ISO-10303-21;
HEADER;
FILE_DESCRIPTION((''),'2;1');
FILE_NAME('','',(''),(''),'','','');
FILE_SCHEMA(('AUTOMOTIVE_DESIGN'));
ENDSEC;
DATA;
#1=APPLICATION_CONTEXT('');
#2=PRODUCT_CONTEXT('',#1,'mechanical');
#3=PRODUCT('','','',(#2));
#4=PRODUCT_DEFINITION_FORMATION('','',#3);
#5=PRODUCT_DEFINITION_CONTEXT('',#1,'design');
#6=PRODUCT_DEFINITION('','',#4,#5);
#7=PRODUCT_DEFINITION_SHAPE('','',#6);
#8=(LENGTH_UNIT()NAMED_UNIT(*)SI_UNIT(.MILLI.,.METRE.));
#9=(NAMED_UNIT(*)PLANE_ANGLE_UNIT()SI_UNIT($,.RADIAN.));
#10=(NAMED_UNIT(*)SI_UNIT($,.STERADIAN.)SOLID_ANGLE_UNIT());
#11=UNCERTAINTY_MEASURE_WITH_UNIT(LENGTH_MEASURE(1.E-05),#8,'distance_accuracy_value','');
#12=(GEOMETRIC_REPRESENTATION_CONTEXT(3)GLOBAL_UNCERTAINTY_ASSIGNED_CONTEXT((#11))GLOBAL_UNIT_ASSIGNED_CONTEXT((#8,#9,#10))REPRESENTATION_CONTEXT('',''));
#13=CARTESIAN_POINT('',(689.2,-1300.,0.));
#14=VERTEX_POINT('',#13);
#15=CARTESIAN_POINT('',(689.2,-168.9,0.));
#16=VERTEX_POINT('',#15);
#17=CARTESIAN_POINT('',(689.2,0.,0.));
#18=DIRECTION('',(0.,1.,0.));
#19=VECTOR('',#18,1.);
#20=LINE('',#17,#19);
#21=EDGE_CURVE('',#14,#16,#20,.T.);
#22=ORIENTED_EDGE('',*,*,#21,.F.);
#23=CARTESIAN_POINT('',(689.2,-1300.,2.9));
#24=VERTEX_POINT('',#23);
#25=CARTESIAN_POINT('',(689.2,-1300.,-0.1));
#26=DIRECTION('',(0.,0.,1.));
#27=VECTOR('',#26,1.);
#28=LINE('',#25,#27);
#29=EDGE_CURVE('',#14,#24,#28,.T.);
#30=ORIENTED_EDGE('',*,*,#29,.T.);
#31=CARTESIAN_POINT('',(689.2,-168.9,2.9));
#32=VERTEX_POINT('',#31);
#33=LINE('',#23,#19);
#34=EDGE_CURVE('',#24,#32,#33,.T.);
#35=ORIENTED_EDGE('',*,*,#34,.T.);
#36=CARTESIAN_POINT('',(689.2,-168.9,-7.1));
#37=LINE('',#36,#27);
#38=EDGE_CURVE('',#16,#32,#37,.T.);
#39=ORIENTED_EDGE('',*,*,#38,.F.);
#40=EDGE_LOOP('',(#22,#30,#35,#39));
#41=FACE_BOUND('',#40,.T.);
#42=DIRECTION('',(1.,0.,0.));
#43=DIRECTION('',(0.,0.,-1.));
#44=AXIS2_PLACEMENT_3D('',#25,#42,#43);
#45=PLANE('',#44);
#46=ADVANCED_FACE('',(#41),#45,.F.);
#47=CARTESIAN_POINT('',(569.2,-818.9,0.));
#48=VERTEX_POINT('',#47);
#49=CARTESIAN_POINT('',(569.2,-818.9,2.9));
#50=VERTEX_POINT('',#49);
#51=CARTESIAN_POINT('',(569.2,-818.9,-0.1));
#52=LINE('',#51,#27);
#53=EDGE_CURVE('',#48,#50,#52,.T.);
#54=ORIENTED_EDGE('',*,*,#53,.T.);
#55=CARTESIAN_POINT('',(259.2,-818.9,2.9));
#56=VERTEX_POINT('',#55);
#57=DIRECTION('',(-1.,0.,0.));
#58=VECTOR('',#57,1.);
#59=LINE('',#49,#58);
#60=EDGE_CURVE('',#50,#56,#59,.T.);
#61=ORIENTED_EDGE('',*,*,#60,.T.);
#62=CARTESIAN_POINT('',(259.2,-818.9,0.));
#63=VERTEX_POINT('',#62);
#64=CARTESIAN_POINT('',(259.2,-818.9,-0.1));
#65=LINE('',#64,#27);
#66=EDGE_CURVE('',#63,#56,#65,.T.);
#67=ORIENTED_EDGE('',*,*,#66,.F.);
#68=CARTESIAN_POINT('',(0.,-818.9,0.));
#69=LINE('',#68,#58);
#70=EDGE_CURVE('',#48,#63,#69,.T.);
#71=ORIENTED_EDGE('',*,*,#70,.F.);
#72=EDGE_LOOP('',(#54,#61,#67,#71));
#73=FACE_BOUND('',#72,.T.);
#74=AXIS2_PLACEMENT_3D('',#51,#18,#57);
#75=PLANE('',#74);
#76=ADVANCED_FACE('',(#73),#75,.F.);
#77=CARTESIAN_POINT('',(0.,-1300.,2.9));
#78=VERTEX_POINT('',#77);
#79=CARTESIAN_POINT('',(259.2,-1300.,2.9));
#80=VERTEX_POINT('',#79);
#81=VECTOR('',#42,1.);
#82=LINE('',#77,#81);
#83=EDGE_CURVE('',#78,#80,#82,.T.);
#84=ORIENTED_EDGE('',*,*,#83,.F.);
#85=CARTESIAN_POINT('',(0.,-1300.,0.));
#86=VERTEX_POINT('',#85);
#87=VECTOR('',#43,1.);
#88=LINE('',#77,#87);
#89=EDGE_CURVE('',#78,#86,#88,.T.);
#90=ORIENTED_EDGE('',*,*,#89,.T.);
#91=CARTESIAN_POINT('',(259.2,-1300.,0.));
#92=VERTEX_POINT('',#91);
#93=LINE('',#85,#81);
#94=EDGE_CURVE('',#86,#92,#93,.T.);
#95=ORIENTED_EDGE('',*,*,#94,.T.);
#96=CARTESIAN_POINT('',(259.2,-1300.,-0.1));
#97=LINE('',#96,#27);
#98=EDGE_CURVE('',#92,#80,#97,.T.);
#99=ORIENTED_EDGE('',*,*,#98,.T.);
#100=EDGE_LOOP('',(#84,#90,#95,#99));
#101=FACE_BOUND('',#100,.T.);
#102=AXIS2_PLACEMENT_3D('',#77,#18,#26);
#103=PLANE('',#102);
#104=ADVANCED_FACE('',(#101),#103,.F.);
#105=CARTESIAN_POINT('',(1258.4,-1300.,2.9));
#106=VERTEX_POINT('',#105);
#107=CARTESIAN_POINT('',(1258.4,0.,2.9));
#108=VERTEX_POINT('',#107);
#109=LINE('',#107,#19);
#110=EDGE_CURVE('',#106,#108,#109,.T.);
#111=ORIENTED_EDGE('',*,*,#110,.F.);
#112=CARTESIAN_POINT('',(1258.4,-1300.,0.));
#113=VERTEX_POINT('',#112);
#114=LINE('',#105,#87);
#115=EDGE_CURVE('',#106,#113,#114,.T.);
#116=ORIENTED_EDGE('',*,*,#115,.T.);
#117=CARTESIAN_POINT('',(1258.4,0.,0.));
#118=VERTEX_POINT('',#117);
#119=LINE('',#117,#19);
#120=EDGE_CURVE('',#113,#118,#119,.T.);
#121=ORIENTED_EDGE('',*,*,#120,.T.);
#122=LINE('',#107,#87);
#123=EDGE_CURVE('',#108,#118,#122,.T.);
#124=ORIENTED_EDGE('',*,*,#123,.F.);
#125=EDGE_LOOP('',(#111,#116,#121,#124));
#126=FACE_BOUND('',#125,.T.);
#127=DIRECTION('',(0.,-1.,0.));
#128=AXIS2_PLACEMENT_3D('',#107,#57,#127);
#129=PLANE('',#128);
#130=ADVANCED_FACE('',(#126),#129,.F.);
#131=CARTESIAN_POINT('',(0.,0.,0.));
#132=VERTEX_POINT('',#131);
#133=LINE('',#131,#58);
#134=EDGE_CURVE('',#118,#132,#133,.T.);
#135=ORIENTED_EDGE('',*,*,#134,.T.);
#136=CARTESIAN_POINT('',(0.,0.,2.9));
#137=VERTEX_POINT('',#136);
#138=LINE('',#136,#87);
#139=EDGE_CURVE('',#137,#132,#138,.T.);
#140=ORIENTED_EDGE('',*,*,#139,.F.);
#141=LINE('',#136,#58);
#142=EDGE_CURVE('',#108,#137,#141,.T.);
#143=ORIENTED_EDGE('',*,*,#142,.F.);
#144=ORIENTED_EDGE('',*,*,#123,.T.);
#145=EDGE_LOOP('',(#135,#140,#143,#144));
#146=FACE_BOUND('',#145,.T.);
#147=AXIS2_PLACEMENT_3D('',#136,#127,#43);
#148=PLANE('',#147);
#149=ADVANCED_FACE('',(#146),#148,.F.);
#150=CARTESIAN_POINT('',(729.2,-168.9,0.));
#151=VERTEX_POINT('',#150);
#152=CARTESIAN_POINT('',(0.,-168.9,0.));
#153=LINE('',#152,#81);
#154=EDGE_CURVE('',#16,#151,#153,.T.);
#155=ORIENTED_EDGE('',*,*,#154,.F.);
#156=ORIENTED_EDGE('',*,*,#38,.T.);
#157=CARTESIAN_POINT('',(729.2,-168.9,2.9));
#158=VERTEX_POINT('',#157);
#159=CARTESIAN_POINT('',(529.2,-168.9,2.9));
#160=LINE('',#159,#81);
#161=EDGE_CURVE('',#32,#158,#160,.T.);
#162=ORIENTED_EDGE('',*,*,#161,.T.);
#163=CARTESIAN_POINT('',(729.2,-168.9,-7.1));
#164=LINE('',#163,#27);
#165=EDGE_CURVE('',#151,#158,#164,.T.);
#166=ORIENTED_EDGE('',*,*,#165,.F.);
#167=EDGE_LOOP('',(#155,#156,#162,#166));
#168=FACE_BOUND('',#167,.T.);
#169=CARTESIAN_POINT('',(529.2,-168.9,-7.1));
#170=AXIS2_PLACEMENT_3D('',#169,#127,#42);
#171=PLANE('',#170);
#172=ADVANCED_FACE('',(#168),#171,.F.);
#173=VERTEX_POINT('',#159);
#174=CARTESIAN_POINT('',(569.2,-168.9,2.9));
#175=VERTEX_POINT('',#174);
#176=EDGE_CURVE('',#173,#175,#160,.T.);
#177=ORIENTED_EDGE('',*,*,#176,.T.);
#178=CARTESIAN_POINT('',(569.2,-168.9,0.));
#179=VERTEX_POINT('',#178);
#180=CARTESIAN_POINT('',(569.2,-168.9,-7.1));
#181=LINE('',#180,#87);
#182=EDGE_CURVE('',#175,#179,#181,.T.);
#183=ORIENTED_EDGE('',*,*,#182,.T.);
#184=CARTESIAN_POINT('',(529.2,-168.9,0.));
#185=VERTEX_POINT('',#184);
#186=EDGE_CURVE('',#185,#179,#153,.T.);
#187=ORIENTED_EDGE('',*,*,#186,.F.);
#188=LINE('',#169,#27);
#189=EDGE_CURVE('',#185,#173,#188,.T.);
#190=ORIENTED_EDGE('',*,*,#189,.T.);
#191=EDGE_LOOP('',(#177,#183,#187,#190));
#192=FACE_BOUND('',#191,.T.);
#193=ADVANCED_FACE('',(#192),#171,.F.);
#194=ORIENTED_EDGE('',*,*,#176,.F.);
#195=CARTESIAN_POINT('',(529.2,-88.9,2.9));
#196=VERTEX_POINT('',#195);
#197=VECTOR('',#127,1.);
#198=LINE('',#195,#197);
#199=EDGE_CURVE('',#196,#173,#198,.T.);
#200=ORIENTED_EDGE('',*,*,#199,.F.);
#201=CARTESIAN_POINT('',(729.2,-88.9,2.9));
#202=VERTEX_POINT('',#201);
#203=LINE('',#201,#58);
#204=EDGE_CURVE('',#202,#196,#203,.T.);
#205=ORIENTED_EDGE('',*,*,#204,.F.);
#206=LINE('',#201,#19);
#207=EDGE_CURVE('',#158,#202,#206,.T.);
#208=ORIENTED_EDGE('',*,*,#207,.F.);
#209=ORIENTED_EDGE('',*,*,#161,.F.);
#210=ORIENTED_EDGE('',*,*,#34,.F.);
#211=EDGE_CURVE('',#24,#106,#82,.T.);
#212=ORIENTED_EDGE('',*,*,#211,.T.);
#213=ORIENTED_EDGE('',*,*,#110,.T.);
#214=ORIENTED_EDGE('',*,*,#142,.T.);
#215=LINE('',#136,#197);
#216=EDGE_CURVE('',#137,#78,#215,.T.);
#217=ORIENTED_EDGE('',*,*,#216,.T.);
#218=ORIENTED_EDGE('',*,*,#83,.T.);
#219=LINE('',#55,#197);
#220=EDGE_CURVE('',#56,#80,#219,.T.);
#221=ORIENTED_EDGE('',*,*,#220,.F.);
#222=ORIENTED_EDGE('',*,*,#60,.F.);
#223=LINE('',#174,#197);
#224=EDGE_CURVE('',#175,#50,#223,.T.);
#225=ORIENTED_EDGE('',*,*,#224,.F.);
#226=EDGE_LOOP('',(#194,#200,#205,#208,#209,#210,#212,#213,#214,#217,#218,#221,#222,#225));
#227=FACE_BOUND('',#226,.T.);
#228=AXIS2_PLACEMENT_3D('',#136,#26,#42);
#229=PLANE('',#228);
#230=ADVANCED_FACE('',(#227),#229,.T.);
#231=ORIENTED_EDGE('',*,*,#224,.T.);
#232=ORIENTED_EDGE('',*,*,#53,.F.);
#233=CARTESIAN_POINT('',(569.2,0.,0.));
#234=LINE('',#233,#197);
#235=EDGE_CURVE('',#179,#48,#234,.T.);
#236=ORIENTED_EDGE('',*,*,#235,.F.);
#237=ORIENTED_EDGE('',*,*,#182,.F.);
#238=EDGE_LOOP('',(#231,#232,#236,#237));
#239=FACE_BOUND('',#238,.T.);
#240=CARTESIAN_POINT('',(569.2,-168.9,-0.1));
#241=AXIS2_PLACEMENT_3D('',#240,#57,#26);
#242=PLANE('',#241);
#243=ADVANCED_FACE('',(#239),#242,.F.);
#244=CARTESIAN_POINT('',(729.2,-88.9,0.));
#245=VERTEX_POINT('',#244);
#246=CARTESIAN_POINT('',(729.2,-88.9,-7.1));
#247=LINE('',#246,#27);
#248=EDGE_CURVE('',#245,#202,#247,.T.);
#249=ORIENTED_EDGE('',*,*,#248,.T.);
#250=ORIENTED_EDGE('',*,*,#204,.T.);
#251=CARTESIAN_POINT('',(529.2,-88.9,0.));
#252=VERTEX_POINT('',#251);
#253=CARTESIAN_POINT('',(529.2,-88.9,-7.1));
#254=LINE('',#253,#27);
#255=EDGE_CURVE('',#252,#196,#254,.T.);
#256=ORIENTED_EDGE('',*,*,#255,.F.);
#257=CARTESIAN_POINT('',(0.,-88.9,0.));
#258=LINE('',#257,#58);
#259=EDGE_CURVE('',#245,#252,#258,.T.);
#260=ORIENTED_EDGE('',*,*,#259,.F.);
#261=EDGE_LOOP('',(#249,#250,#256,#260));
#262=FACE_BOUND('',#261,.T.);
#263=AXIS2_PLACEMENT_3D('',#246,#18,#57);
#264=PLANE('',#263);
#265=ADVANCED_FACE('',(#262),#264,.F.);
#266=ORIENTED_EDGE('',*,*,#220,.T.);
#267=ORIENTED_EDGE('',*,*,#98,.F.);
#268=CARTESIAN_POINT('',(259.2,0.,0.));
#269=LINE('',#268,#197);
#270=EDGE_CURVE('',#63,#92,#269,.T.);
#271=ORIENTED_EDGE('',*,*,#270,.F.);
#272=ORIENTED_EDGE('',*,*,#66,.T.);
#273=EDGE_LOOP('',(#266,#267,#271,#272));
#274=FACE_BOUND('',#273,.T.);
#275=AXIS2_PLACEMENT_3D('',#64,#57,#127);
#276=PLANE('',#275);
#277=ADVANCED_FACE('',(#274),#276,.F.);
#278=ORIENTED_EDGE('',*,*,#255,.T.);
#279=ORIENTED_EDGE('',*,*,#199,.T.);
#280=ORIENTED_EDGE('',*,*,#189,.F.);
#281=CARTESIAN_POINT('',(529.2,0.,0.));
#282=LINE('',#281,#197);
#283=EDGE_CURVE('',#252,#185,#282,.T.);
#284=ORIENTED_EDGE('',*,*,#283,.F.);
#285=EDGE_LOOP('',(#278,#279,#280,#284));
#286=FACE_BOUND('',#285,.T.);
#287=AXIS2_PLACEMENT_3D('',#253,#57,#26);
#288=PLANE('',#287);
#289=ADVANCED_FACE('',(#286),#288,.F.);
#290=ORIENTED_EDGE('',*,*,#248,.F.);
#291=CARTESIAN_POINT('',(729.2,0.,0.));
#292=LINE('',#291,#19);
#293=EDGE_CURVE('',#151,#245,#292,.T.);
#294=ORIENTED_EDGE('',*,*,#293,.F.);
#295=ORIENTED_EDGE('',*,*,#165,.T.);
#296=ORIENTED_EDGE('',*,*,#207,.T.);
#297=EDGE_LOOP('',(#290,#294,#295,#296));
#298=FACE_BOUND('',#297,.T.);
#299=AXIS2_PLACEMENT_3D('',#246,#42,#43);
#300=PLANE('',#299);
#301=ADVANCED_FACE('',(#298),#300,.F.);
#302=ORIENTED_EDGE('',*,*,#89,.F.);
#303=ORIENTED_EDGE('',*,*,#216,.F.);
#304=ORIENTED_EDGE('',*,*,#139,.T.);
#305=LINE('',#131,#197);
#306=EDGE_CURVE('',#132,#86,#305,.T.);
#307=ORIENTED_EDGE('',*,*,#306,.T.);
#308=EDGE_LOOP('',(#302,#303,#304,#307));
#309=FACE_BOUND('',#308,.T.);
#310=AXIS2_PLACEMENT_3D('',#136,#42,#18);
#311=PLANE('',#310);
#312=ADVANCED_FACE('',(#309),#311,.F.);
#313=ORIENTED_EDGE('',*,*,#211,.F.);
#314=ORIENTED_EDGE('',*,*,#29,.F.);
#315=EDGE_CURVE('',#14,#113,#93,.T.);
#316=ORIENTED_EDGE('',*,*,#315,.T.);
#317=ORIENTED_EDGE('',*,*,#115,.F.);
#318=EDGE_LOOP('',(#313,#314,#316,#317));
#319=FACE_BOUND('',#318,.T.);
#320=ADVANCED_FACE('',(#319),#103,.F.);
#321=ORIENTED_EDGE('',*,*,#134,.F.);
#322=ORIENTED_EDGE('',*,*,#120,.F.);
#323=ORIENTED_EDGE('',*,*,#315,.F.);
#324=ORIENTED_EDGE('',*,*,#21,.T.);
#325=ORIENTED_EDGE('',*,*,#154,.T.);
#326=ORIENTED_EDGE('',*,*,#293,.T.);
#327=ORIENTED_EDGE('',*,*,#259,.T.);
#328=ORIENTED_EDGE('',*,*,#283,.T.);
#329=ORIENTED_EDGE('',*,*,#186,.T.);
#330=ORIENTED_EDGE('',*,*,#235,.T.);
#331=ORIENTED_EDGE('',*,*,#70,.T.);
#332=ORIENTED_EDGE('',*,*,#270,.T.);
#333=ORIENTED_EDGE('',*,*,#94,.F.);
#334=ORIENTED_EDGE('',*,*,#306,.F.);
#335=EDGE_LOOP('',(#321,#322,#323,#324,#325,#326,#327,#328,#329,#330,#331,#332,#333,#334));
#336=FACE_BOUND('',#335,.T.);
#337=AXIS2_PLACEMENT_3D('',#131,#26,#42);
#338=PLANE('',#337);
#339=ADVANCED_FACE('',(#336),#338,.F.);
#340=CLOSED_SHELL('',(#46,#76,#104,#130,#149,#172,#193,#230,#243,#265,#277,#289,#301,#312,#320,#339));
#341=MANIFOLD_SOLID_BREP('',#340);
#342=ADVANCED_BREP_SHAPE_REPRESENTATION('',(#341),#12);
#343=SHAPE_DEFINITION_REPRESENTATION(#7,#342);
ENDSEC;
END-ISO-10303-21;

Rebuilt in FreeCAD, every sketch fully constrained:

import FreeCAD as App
import Part
import Sketcher
Q = App.Units.Quantity

doc = App.newDocument("Part")
body = doc.addObject("PartDesign::Body", "Body")

sketch1 = body.newObject("Sketcher::SketchObject", "Sketch")
sketch1.AttachmentSupport = (doc.getObject("XY_Plane"), [""])
sketch1.MapMode = "FlatFace"
sketch1.addGeometry([
    Part.LineSegment(App.Vector(0, 0, 0), App.Vector(0, -1300, 0)),
    Part.LineSegment(App.Vector(0, -1300, 0), App.Vector(1258, -1300, 0)),
    Part.LineSegment(App.Vector(1258, -1300, 0), App.Vector(1258, 0, 0)),
    Part.LineSegment(App.Vector(1258, 0, 0), App.Vector(0, 0, 0)),
], False)
sketch1.addConstraint([
    Sketcher.Constraint("Coincident", 0, 2, 1, 1),
    Sketcher.Constraint("Coincident", 1, 2, 2, 1),
    Sketcher.Constraint("Coincident", 2, 2, 3, 1),
    Sketcher.Constraint("Coincident", 3, 2, 0, 1),
    Sketcher.Constraint("Vertical", 0),
    Sketcher.Constraint("Horizontal", 1),
    Sketcher.Constraint("Vertical", 2),
    Sketcher.Constraint("Horizontal", 3),
    Sketcher.Constraint("Coincident", 3, 2, -1, 1),
    Sketcher.Constraint("DistanceY", 0, 2, 0, 1, Q("1300 mm")),
    Sketcher.Constraint("DistanceX", 1, 1, 1, 2, Q("1258.4 mm")),
])
pad1 = body.newObject("PartDesign::Pad", "Pad")
pad1.Profile = sketch1
pad1.Length = 2.9

sketch2 = body.newObject("Sketcher::SketchObject", "Sketch001")
sketch2.AttachmentSupport = (doc.getObject("XY_Plane"), [""])
sketch2.MapMode = "FlatFace"
sketch2.AttachmentOffset = App.Placement(App.Vector(0, 0, 2.9), App.Rotation())
sketch2.addGeometry([
    Part.LineSegment(App.Vector(529, -89, 0), App.Vector(529, -169, 0)),
    Part.LineSegment(App.Vector(529, -169, 0), App.Vector(729, -169, 0)),
    Part.LineSegment(App.Vector(729, -169, 0), App.Vector(729, -89, 0)),
    Part.LineSegment(App.Vector(729, -89, 0), App.Vector(529, -89, 0)),
], False)
sketch2.addConstraint([
    Sketcher.Constraint("Coincident", 0, 2, 1, 1),
    Sketcher.Constraint("Coincident", 1, 2, 2, 1),
    Sketcher.Constraint("Coincident", 2, 2, 3, 1),
    Sketcher.Constraint("Coincident", 3, 2, 0, 1),
    Sketcher.Constraint("Vertical", 0),
    Sketcher.Constraint("Horizontal", 1),
    Sketcher.Constraint("Vertical", 2),
    Sketcher.Constraint("Horizontal", 3),
    Sketcher.Constraint("DistanceX", 1, 1, 1, 2, Q("200 mm")),
    Sketcher.Constraint("DistanceY", 0, 2, 0, 1, Q("80 mm")),
    Sketcher.Constraint("DistanceX", -1, 1, 0, 2, Q("529.2 mm")),
    Sketcher.Constraint("DistanceY", 0, 2, -1, 1, Q("168.9 mm")),
])
pocket1 = body.newObject("PartDesign::Pocket", "Pocket")
pocket1.Profile = sketch2
pocket1.Length = 10

sketch3 = body.newObject("Sketcher::SketchObject", "Sketch002")
sketch3.AttachmentSupport = (doc.getObject("XY_Plane"), [""])
sketch3.MapMode = "FlatFace"
sketch3.AttachmentOffset = App.Placement(App.Vector(0, 0, 2.9), App.Rotation())
sketch3.addGeometry([
    Part.LineSegment(App.Vector(569, -169, 0), App.Vector(569, -819, 0)),
    Part.LineSegment(App.Vector(569, -819, 0), App.Vector(259, -819, 0)),
    Part.LineSegment(App.Vector(259, -819, 0), App.Vector(259, -1300, 0)),
    Part.LineSegment(App.Vector(259, -1300, 0), App.Vector(689, -1300, 0)),
    Part.LineSegment(App.Vector(689, -1300, 0), App.Vector(689, -169, 0)),
    Part.LineSegment(App.Vector(689, -169, 0), App.Vector(569, -169, 0)),
], False)
sketch3.addConstraint([
    Sketcher.Constraint("Coincident", 0, 2, 1, 1),
    Sketcher.Constraint("Coincident", 1, 2, 2, 1),
    Sketcher.Constraint("Coincident", 2, 2, 3, 1),
    Sketcher.Constraint("Coincident", 3, 2, 4, 1),
    Sketcher.Constraint("Coincident", 4, 2, 5, 1),
    Sketcher.Constraint("Coincident", 5, 2, 0, 1),
    Sketcher.Constraint("Vertical", 0),
    Sketcher.Constraint("Horizontal", 1),
    Sketcher.Constraint("Vertical", 2),
    Sketcher.Constraint("Horizontal", 3),
    Sketcher.Constraint("Vertical", 4),
    Sketcher.Constraint("Horizontal", 5),
    Sketcher.Constraint("DistanceX", 1, 2, 1, 1, Q("310 mm")),
    Sketcher.Constraint("DistanceX", 3, 1, 3, 2, Q("430 mm")),
    Sketcher.Constraint("DistanceY", 0, 2, 0, 1, Q("650 mm")),
    Sketcher.Constraint("DistanceY", 2, 2, 2, 1, Q("481.1 mm")),
    Sketcher.Constraint("DistanceY", 2, 2, -1, 1, Q("1300 mm")),
    Sketcher.Constraint("DistanceX", -1, 1, 0, 2, Q("569.2 mm")),
])
pocket2 = body.newObject("PartDesign::Pocket", "Pocket001")
pocket2.Profile = sketch3
pocket2.Length = 3

doc.recompute()
